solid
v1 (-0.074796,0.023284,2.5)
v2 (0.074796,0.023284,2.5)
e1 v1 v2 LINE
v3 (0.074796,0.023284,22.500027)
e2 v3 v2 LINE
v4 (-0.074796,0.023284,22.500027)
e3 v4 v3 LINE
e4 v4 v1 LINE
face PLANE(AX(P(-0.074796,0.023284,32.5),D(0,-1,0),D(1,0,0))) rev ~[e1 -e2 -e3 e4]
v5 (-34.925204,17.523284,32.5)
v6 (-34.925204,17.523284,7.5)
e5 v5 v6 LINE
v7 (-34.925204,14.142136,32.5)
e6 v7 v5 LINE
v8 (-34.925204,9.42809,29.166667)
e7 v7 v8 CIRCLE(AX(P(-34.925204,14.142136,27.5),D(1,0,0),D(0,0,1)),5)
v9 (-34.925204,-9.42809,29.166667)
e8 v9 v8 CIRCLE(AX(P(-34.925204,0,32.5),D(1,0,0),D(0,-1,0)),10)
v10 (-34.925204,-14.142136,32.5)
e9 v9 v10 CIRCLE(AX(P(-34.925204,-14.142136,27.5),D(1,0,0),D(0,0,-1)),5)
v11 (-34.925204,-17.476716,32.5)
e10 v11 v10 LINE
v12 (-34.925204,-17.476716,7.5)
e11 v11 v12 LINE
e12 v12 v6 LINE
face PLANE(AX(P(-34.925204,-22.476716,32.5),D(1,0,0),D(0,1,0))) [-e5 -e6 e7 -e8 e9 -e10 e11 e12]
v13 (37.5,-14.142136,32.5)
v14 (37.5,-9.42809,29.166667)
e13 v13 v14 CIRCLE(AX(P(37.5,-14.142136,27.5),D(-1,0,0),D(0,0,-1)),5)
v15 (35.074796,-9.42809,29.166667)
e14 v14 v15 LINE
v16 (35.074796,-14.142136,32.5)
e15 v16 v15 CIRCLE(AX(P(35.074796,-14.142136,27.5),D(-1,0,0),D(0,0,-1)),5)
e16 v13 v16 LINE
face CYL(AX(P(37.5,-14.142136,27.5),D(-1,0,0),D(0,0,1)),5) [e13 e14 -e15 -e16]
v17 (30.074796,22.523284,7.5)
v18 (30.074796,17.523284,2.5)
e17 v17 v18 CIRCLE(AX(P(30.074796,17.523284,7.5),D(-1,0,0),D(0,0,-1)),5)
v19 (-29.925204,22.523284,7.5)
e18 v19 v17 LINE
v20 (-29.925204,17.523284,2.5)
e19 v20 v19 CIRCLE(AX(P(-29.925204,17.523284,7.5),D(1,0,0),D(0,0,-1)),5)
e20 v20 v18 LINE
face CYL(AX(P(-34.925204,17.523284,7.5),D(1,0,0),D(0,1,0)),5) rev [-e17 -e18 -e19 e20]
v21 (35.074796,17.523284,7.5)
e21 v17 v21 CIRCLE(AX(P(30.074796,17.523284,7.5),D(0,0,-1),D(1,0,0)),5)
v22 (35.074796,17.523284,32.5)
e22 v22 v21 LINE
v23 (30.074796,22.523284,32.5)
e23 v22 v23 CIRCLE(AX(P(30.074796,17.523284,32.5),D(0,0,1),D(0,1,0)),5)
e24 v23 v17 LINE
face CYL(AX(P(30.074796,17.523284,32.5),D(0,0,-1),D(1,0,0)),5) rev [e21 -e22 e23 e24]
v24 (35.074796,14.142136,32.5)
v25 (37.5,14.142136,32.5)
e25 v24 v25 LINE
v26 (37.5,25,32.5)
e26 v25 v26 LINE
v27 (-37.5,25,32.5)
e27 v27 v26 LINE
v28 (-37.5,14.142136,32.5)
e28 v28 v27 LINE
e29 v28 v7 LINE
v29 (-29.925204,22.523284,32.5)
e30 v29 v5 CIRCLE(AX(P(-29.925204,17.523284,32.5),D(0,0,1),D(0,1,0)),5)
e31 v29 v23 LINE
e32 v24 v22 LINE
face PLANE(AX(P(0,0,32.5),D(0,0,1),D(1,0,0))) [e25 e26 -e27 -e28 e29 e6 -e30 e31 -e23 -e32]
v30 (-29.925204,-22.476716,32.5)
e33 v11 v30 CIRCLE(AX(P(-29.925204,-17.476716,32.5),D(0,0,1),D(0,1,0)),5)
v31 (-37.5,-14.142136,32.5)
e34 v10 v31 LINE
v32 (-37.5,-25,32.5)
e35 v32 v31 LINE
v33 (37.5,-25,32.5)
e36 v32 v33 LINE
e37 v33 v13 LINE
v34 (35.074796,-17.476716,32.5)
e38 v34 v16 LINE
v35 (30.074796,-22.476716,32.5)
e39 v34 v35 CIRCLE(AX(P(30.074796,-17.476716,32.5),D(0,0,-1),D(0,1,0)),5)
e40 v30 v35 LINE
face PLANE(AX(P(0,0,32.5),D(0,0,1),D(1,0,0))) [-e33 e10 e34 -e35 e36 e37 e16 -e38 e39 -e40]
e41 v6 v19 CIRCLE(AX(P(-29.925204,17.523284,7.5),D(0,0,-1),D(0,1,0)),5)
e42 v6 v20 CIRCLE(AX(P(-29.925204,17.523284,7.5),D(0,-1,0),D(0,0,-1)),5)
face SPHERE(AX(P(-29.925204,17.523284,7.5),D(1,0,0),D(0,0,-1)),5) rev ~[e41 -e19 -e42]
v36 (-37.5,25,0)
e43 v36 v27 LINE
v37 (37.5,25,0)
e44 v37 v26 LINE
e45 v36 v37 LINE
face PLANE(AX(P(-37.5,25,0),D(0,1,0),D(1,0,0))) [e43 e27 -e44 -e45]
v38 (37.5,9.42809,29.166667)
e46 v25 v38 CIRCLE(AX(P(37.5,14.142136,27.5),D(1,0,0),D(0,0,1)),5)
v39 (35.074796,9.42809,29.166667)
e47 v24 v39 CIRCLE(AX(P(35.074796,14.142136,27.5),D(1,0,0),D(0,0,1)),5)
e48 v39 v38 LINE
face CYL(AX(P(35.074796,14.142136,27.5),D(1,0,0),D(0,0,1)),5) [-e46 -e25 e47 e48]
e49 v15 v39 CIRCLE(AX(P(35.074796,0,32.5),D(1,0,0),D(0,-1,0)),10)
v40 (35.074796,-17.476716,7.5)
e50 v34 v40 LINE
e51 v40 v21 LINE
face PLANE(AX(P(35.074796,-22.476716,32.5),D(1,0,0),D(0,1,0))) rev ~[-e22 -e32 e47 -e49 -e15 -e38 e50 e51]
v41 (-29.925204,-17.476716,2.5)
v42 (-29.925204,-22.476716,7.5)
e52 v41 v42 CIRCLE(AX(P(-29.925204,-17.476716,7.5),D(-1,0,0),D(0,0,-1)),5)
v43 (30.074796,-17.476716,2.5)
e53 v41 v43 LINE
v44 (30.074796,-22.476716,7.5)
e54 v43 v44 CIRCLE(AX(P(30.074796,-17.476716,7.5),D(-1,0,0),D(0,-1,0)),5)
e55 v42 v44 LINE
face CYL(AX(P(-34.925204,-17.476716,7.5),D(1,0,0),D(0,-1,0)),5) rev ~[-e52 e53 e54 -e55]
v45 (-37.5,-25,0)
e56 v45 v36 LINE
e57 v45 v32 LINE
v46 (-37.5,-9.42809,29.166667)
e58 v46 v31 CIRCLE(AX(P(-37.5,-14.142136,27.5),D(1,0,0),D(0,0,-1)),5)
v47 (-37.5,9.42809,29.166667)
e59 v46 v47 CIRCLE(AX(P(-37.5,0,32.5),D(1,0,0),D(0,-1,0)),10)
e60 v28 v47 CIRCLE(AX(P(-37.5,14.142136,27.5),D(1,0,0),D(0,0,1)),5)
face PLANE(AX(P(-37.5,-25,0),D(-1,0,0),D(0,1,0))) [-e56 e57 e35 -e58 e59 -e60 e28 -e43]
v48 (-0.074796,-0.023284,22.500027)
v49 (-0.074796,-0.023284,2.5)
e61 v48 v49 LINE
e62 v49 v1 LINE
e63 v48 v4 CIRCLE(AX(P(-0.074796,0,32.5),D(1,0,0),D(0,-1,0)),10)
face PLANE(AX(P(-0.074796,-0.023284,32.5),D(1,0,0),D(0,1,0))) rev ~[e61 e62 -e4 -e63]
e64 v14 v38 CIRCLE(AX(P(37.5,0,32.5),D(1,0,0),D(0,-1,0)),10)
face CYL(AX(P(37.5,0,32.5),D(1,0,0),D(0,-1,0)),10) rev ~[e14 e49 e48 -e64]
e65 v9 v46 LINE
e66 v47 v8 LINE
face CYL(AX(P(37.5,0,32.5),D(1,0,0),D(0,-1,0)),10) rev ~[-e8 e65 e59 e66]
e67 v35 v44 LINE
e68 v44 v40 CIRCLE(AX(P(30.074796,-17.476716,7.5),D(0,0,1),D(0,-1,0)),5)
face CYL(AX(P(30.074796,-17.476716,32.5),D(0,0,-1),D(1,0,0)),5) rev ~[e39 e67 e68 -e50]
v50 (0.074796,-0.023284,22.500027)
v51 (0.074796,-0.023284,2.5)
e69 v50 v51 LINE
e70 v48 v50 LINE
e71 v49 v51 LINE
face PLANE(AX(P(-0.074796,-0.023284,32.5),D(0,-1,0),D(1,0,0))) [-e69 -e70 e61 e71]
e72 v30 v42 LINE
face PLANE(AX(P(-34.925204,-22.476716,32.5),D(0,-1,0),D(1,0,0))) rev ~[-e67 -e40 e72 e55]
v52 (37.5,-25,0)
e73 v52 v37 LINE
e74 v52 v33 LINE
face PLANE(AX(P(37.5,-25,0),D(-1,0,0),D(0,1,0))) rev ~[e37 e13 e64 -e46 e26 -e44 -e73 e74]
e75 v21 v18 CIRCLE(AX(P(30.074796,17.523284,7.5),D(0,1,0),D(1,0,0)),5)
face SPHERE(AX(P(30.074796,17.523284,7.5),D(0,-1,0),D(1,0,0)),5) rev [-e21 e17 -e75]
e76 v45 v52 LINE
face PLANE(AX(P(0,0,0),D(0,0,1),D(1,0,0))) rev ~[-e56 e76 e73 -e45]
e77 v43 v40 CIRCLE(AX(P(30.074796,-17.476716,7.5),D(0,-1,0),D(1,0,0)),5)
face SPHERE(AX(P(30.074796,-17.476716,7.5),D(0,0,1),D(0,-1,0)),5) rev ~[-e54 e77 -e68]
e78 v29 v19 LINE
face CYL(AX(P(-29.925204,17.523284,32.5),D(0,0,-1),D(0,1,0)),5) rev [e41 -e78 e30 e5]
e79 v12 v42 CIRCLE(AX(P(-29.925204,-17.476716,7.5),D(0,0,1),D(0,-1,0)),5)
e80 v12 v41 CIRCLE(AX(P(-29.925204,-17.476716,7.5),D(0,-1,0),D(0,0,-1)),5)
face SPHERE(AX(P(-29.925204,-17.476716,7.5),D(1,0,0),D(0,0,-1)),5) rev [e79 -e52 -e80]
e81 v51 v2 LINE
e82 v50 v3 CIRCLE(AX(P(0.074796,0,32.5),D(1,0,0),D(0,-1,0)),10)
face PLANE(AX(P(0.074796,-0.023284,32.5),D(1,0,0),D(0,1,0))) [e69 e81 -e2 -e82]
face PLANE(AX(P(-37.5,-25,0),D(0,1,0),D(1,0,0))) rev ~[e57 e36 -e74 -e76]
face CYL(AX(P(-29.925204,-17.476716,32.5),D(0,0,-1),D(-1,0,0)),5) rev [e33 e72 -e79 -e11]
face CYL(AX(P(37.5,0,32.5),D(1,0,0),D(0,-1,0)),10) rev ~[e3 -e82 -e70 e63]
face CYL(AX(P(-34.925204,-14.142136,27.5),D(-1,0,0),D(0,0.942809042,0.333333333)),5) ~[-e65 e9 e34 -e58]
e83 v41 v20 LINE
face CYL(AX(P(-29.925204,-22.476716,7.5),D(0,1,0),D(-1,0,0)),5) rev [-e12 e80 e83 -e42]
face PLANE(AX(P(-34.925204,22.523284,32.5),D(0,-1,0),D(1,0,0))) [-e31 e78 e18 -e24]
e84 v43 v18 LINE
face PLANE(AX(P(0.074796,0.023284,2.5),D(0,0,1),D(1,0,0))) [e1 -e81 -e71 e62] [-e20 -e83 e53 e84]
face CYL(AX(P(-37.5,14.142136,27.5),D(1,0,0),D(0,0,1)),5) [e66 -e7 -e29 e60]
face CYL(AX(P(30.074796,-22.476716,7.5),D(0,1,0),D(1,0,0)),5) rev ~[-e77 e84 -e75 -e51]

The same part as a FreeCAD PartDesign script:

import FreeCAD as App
import Part
import Sketcher
Q = App.Units.Quantity


def edges_at(feature, points):
    """Names of the edges that pass closest to the given points."""
    edges = feature.Shape.Edges
    near = lambda p: min(range(len(edges)), key=lambda i: edges[i].distToShape(Part.Vertex(*p))[0])
    return sorted({f"Edge{near(p) + 1}" for p in points})


def add_polygon(sketch, points):
    """Adds a closed chain of lines whose ends are joined by coincident constraints."""
    first, n = sketch.GeometryCount, len(points)
    for a, b in zip(points, points[1:] + points[:1]):
        sketch.addGeometry(Part.LineSegment(App.Vector(*a, 0), App.Vector(*b, 0)), False)
    for i in range(n):
        sketch.addConstraint(Sketcher.Constraint("Coincident", first + i, 2, first + (i + 1) % n, 1))

doc = App.newDocument("Part")
params = doc.addObject("Spreadsheet::Sheet", "Params")
for row, (alias, value) in enumerate([
    ("sketch1_width", "75 mm"),
    ("sketch1_height", "50 mm"),
    ("pad1_length", "32.5 mm"),
    ("sketch2_width", "70 mm"),
    ("sketch2_height", "45 mm"),
    ("pocket1_length", "30 mm"),
    ("sketch3_diameter", "20 mm"),
    ("pocket2_length", "76 mm"),
    ("fillet_radius", "5 mm"),
], start=1):
    params.set(f"A{row}", alias)
    params.set(f"B{row}", "=" + value)
    params.setAlias(f"B{row}", alias)

body = doc.addObject("PartDesign::Body", "Body")

sketch1 = body.newObject("Sketcher::SketchObject", "Sketch")
sketch1.AttachmentSupport = (doc.getObject("XY_Plane"), [""])
sketch1.MapMode = "FlatFace"
add_polygon(sketch1, [(-38, 25), (-38, -25), (38, -25), (38, 25)])
sketch1.addConstraint([
    Sketcher.Constraint("Vertical", 0),
    Sketcher.Constraint("Horizontal", 1),
    Sketcher.Constraint("Vertical", 2),
    Sketcher.Constraint("Horizontal", 3),
    Sketcher.Constraint("Symmetric", 0, 2, 2, 2, -1, 1),
    Sketcher.Constraint("DistanceX", 1, 1, 1, 2, Q("75 mm")),
    Sketcher.Constraint("DistanceY", 0, 2, 0, 1, Q("50 mm")),
])
sketch1.setExpression("Constraints[9]", "Params.sketch1_width")
sketch1.setExpression("Constraints[10]", "Params.sketch1_height")
pad1 = body.newObject("PartDesign::Pad", "Pad")
pad1.Profile = sketch1
pad1.setExpression("Length", "Params.pad1_length")

sketch2 = body.newObject("Sketcher::SketchObject", "Sketch001")
sketch2.AttachmentSupport = (doc.getObject("XY_Plane"), [""])
sketch2.MapMode = "FlatFace"
sketch2.AttachmentOffset = App.Placement(App.Vector(0, 0, 32.5), App.Rotation())
add_polygon(sketch2, [(-34.925, 22.523), (-34.925, -22.477), (35.075, -22.477), (35.075, 22.523)])
add_polygon(sketch2, [(0.075, -0.023), (-0.075, -0.023), (-0.075, 0.023), (0.075, 0.023)])
sketch2.addConstraint([
    Sketcher.Constraint("Vertical", 0),
    Sketcher.Constraint("Horizontal", 1),
    Sketcher.Constraint("Vertical", 2),
    Sketcher.Constraint("Horizontal", 3),
    Sketcher.Constraint("Horizontal", 4),
    Sketcher.Constraint("Vertical", 5),
    Sketcher.Constraint("Horizontal", 6),
    Sketcher.Constraint("Vertical", 7),
    Sketcher.Constraint("Symmetric", 4, 2, 6, 2, -1, 1),
    Sketcher.Constraint("DistanceX", 1, 1, 1, 2, Q("70 mm")),
    Sketcher.Constraint("DistanceY", 0, 2, 0, 1, Q("45 mm")),
    Sketcher.Constraint("DistanceX", 0, 2, 6, 2, Q("35 mm")),
    Sketcher.Constraint("DistanceY", 0, 2, 5, 2, Q("22.5 mm")),
    Sketcher.Constraint("DistanceY", 5, 1, 5, 2, Q("0.046568 mm")),
    Sketcher.Constraint("DistanceX", 4, 2, 4, 1, Q("0.149593 mm")),
])
sketch2.setExpression("Constraints[17]", "Params.sketch2_width")
sketch2.setExpression("Constraints[18]", "Params.sketch2_height")
pocket1 = body.newObject("PartDesign::Pocket", "Pocket")
pocket1.Profile = sketch2
pocket1.setExpression("Length", "Params.pocket1_length")

sketch3 = body.newObject("Sketcher::SketchObject", "Sketch002")
sketch3.AttachmentSupport = (doc.getObject("YZ_Plane"), [""])
sketch3.MapMode = "FlatFace"
sketch3.AttachmentOffset = App.Placement(App.Vector(0, 0, 37.5), App.Rotation())
sketch3.addGeometry(Part.Circle(App.Vector(0, 32, 0), App.Vector(0, 0, 1), 10), False)
sketch3.addConstraint([
    Sketcher.Constraint("PointOnObject", 0, 3, -2),
    Sketcher.Constraint("Diameter", 0, Q("20 mm")),
    Sketcher.Constraint("DistanceY", -1, 1, 0, 3, Q("32.5 mm")),
])
sketch3.setExpression("Constraints[1]", "Params.sketch3_diameter")
pocket2 = body.newObject("PartDesign::Pocket", "Pocket001")
pocket2.Profile = sketch3
pocket2.setExpression("Length", "Params.pocket2_length")
doc.recompute()

fillet = body.newObject("PartDesign::Fillet", "Fillet")
fillet.Base = (pocket2, edges_at(pocket2, [
    (35.075, -22.477, 17.5),
    (0.075, -22.477, 2.5),
    (35.075, 0.023, 2.5),
    (-36.213, -10, 32.5),
    (36.287, -10, 32.5),
    (36.287, 10, 32.5),
    (-36.213, 10, 32.5),
    (35.075, 22.523, 17.5),
    (0.075, 22.523, 2.5),
    (-34.925, 0.023, 2.5),
    (-34.925, -22.477, 17.5),
    (-34.925, 22.523, 17.5),
]))
fillet.setExpression("Radius", "Params.fillet_radius")

doc.recompute()
